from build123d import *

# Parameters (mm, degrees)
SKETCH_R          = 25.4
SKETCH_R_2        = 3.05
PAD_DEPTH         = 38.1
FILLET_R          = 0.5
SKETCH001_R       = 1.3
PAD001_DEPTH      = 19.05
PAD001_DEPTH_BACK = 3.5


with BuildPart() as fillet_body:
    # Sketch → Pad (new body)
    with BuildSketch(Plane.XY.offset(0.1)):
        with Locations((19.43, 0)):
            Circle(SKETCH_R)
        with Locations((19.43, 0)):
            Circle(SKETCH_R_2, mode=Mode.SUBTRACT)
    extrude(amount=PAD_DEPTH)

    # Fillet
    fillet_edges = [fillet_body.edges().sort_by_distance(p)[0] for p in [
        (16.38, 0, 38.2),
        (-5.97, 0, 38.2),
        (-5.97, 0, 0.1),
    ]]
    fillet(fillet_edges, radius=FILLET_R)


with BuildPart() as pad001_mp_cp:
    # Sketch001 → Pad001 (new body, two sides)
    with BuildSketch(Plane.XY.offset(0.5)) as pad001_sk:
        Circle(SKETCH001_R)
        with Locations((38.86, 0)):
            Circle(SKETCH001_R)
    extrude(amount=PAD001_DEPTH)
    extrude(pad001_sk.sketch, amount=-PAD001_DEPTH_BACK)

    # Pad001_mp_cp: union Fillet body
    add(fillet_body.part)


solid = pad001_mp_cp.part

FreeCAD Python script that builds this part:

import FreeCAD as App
import Part
import Sketcher
from FreeCAD import Vector
Q = App.Units.Quantity


def edges_at(feature, points):
    """Names of the edges that pass closest to the given points."""
    edges = feature.Shape.Edges
    near = lambda p: min(range(len(edges)), key=lambda i: edges[i].distToShape(Part.Vertex(*p))[0])
    return sorted({f"Edge{near(p) + 1}" for p in points})

doc = App.newDocument("Part")
body = doc.addObject("PartDesign::Body", "Body")

# Sketch on XY plane
sketch1 = doc.addObject("Sketcher::SketchObject", "Sketch")
body.addObject(sketch1)
sketch1.AttachmentSupport = (doc.XY_Plane, [""])
sketch1.MapMode = "FlatFace"
sketch1.AttachmentOffset = App.Placement(Vector(0, 0, 0.1), App.Rotation())
sketch1.addGeometry(Part.Circle(Vector(19.4, 0, 0), Vector(0, 0, 1), 25.4), False)
sketch1.addGeometry(Part.Circle(Vector(19.4, 0, 0), Vector(0, 0, 1), 3), False)
sketch1.addConstraint(Sketcher.Constraint("Coincident", 1, 3, 0, 3))
sketch1.addConstraint(Sketcher.Constraint("PointOnObject", 0, 3, -1))
sketch1.addConstraint(Sketcher.Constraint("Diameter", 0, Q("50.8 mm")))
sketch1.addConstraint(Sketcher.Constraint("Diameter", 1, Q("6.1 mm")))
sketch1.addConstraint(Sketcher.Constraint("DistanceX", -1, 1, 0, 3, Q("19.43 mm")))
pad1 = doc.addObject("PartDesign::Pad", "Pad")
body.addObject(pad1)
pad1.Profile = sketch1
pad1.Length = 38.1
doc.recompute()

fillet = doc.addObject("PartDesign::Fillet", "Fillet")
body.addObject(fillet)
fillet.Base = (pad1, edges_at(pad1, [(16.38, 0, 38.2), (-5.97, 0, 38.2), (-5.97, 0, 0.1)]))
fillet.Radius = 0.5
body2 = doc.addObject("PartDesign::Body", "Body001")
body2.AllowCompound = True

# Sketch on XY plane
sketch2 = doc.addObject("Sketcher::SketchObject", "Sketch001")
body2.addObject(sketch2)
sketch2.AttachmentSupport = (doc.getObject("XY_Plane001"), [""])
sketch2.MapMode = "FlatFace"
sketch2.AttachmentOffset = App.Placement(Vector(0, 0, 0.5), App.Rotation())
sketch2.addGeometry(Part.Circle(Vector(0, 0, 0), Vector(0, 0, 1), 1.3), False)
sketch2.addGeometry(Part.Circle(Vector(38.9, 0, 0), Vector(0, 0, 1), 1.3), False)
sketch2.addConstraint(Sketcher.Constraint("Coincident", 0, 3, -1, 1))
sketch2.addConstraint(Sketcher.Constraint("Equal", 0, 1))
sketch2.addConstraint(Sketcher.Constraint("PointOnObject", 1, 3, -1))
sketch2.addConstraint(Sketcher.Constraint("Diameter", 0, Q("2.6 mm")))
sketch2.addConstraint(Sketcher.Constraint("DistanceX", -1, 1, 1, 3, Q("38.86 mm")))
pad2 = doc.addObject("PartDesign::Pad", "Pad001")
body2.addObject(pad2)
pad2.Profile = sketch2
pad2.Type = "TwoLengths"
pad2.Length = 19.05
pad2.Length2 = 3.5
doc.recompute()

boolean = doc.addObject("PartDesign::Boolean", "Boolean")
body2.addObject(boolean)
boolean.Type = "Fuse"
boolean.addObjects([body])

doc.recompute()
